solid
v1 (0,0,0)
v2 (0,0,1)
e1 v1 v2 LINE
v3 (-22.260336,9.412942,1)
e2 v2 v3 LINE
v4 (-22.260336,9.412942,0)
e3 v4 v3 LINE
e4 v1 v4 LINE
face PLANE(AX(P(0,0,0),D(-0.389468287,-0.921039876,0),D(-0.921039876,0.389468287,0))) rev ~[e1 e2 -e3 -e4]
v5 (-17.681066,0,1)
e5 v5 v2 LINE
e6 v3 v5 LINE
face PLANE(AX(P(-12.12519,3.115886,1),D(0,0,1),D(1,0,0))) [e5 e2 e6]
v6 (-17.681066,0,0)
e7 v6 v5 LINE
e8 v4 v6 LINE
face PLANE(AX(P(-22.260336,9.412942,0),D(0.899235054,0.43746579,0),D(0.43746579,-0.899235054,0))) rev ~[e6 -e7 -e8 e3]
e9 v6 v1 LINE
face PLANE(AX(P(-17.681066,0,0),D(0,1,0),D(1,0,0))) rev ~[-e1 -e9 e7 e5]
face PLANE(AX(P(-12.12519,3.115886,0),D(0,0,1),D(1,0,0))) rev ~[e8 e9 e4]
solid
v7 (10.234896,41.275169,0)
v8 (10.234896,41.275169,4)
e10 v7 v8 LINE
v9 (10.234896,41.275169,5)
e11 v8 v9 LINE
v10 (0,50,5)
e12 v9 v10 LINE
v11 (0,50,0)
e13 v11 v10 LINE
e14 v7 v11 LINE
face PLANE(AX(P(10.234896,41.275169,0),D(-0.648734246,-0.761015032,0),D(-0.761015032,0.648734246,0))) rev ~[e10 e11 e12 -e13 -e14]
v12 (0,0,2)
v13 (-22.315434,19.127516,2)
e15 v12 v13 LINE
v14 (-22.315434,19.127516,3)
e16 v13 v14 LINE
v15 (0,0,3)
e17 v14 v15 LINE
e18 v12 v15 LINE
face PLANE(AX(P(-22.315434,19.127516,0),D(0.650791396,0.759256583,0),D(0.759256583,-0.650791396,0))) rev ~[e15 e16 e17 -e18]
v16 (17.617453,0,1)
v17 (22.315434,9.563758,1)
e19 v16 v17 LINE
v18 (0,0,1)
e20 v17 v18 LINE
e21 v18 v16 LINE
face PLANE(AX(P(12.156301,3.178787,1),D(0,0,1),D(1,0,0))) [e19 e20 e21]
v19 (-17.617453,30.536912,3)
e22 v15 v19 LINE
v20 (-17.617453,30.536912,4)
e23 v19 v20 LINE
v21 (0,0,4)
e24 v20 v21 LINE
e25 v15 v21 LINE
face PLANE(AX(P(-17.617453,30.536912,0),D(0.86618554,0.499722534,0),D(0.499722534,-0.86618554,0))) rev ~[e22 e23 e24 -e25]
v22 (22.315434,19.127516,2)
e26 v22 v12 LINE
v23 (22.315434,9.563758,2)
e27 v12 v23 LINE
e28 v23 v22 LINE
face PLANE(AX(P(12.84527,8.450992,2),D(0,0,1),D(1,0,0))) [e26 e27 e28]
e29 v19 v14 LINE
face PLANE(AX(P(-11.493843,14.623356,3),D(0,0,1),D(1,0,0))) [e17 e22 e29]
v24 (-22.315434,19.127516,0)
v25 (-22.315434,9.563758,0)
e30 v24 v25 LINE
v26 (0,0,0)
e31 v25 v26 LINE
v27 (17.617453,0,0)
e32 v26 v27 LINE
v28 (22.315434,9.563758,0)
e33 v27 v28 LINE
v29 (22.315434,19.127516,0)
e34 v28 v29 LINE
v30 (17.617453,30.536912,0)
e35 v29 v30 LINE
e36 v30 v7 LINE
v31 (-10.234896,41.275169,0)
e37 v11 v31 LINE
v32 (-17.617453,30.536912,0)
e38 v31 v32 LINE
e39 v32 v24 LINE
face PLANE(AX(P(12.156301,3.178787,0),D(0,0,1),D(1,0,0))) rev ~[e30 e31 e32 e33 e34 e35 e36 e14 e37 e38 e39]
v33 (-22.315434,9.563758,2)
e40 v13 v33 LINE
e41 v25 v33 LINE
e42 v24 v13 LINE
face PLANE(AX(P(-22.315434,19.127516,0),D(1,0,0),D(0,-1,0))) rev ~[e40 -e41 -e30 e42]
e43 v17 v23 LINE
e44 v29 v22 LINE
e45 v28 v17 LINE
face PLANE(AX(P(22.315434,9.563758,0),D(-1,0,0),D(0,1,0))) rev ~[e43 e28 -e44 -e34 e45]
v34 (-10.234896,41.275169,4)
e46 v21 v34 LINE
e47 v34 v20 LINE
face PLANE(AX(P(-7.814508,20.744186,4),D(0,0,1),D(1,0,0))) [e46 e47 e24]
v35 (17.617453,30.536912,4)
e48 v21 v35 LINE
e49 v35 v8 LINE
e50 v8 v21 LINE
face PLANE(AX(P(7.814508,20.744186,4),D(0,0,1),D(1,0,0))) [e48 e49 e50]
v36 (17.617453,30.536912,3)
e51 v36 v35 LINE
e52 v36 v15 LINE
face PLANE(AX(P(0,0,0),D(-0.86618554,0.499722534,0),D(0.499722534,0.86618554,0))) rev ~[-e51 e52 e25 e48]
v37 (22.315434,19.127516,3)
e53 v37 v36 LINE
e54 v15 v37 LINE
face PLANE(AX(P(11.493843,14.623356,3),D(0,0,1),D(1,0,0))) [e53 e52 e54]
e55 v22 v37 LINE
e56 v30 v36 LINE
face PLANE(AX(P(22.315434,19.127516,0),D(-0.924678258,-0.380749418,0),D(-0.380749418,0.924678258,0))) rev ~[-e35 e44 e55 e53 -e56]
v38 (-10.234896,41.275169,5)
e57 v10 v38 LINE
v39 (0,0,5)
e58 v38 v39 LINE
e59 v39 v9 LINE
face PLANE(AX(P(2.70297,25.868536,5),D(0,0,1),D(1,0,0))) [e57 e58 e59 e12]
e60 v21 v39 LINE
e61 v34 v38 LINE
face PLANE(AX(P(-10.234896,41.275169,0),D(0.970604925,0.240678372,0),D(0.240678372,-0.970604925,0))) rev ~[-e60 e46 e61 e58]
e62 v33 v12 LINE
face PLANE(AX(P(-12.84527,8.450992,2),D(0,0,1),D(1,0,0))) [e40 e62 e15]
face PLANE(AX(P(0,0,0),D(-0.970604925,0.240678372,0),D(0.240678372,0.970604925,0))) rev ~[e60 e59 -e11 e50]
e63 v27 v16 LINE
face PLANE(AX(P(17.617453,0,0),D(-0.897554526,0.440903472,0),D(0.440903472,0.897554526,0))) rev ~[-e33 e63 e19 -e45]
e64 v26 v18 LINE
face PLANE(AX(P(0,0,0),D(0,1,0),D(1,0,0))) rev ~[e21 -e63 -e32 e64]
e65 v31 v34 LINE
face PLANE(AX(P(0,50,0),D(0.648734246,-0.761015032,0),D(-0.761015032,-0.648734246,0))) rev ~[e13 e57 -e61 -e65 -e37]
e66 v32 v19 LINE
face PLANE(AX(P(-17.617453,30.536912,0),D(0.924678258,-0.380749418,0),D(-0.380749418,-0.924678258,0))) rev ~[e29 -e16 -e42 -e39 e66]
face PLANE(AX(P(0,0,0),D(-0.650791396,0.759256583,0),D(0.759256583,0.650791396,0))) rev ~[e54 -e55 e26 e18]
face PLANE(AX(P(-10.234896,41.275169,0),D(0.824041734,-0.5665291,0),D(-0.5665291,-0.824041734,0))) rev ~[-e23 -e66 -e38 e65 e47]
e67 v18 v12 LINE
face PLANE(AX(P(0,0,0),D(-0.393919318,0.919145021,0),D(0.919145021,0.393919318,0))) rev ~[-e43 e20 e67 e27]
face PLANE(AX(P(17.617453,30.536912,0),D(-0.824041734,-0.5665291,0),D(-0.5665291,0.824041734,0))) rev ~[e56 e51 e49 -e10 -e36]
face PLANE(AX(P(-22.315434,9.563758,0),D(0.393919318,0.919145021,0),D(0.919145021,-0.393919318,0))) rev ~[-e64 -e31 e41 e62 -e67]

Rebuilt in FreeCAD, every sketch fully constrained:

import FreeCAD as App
import Part
import Sketcher
Q = App.Units.Quantity

doc = App.newDocument("Part")
body = doc.addObject("PartDesign::Body", "Body")

# Sketch on XY plane
sketch1 = body.newObject("Sketcher::SketchObject", "Sketch")
sketch1.AttachmentSupport = (doc.getObject("XY_Plane"), [""])
sketch1.MapMode = "FlatFace"
sketch1.addGeometry(Part.LineSegment(App.Vector(-17.681066, 0, 0), App.Vector(0, 0, 0)), False)
sketch1.addGeometry(Part.LineSegment(App.Vector(0, 0, 0), App.Vector(-22.260336, 9.412942, 0)), False)
sketch1.addGeometry(Part.LineSegment(App.Vector(-22.260336, 9.412942, 0), App.Vector(-17.681066, 0, 0)), False)
sketch1.addConstraint(Sketcher.Constraint("Coincident", 0, 2, 1, 1))
sketch1.addConstraint(Sketcher.Constraint("Coincident", 1, 2, 2, 1))
sketch1.addConstraint(Sketcher.Constraint("Coincident", 2, 2, 0, 1))
sketch1.addConstraint(Sketcher.Constraint("Horizontal", 0))
sketch1.addConstraint(Sketcher.Constraint("Coincident", 0, 2, -1, 1))
sketch1.addConstraint(Sketcher.Constraint("Distance", 1, Q("24.1687 mm")))
sketch1.addConstraint(Sketcher.Constraint("Distance", 2, Q("10.467721 mm")))
sketch1.addConstraint(Sketcher.Constraint("DistanceX", 0, 1, 0, 2, Q("17.681066 mm")))
pad1 = body.newObject("PartDesign::Pad", "Pad")
pad1.Profile = sketch1
pad1.Length = 1
body2 = doc.addObject("PartDesign::Body", "Body001")

# Sketch on XY plane
sketch2 = body2.newObject("Sketcher::SketchObject", "Sketch001")
sketch2.AttachmentSupport = (doc.getObject("XY_Plane001"), [""])
sketch2.MapMode = "FlatFace"
sketch2.addGeometry(Part.LineSegment(App.Vector(-22.315434, 9.563758, 0), App.Vector(0, 0, 0)), False)
sketch2.addGeometry(Part.LineSegment(App.Vector(0, 0, 0), App.Vector(-22.315434, 19.127516, 0)), False)
sketch2.addGeometry(Part.LineSegment(App.Vector(-22.315434, 19.127516, 0), App.Vector(-22.315434, 9.563758, 0)), False)
sketch2.addConstraint(Sketcher.Constraint("Coincident", 0, 2, 1, 1))
sketch2.addConstraint(Sketcher.Constraint("Coincident", 1, 2, 2, 1))
sketch2.addConstraint(Sketcher.Constraint("Coincident", 2, 2, 0, 1))
sketch2.addConstraint(Sketcher.Constraint("Vertical", 2))
sketch2.addConstraint(Sketcher.Constraint("Coincident", 0, 2, -1, 1))
sketch2.addConstraint(Sketcher.Constraint("Distance", 0, Q("24.278469 mm")))
sketch2.addConstraint(Sketcher.Constraint("DistanceY", 2, 2, 2, 1, Q("9.563758 mm")))
sketch2.addConstraint(Sketcher.Constraint("Distance", 1, Q("29.391163 mm")))
pad2 = body2.newObject("PartDesign::Pad", "Pad001")
pad2.Profile = sketch2
pad2.Length = 2
body.AllowCompound = True
doc.recompute()

boolean = body.newObject("PartDesign::Boolean", "Boolean")
boolean.Type = "Fuse"
boolean.addObjects([body2])

# Sketch on XY plane
sketch3 = body.newObject("Sketcher::SketchObject", "Sketch002")
sketch3.AttachmentSupport = (doc.getObject("XY_Plane"), [""])
sketch3.MapMode = "FlatFace"
sketch3.addGeometry(Part.LineSegment(App.Vector(-22.315434, 19.127516, 0), App.Vector(0, 0, 0)), False)
sketch3.addGeometry(Part.LineSegment(App.Vector(0, 0, 0), App.Vector(-17.617453, 30.536912, 0)), False)
sketch3.addGeometry(Part.LineSegment(App.Vector(-17.617453, 30.536912, 0), App.Vector(-22.315434, 19.127516, 0)), False)
sketch3.addConstraint(Sketcher.Constraint("Coincident", 0, 2, 1, 1))
sketch3.addConstraint(Sketcher.Constraint("Coincident", 1, 2, 2, 1))
sketch3.addConstraint(Sketcher.Constraint("Coincident", 2, 2, 0, 1))
sketch3.addConstraint(Sketcher.Constraint("Coincident", 0, 2, -1, 1))
sketch3.addConstraint(Sketcher.Constraint("Distance", 1, Q("35.25447 mm")))
sketch3.addConstraint(Sketcher.Constraint("DistanceX", 2, 2, 1, 2, Q("4.697981 mm")))
sketch3.addConstraint(Sketcher.Constraint("Distance", 0, Q("29.391163 mm")))
sketch3.addConstraint(Sketcher.Constraint("Distance", 2, Q("12.338774 mm")))
pad3 = body.newObject("PartDesign::Pad", "Pad002")
pad3.Profile = sketch3
pad3.Length = 3

# Sketch on XY plane
sketch4 = body.newObject("Sketcher::SketchObject", "Sketch003")
sketch4.AttachmentSupport = (doc.getObject("XY_Plane"), [""])
sketch4.MapMode = "FlatFace"
sketch4.addGeometry(Part.LineSegment(App.Vector(-10.234896, 41.275169, 0), App.Vector(-17.617453, 30.536912, 0)), False)
sketch4.addGeometry(Part.LineSegment(App.Vector(-17.617453, 30.536912, 0), App.Vector(0, 0, 0)), False)
sketch4.addGeometry(Part.LineSegment(App.Vector(0, 0, 0), App.Vector(-10.234896, 41.275169, 0)), False)
sketch4.addConstraint(Sketcher.Constraint("Coincident", 0, 2, 1, 1))
sketch4.addConstraint(Sketcher.Constraint("Coincident", 1, 2, 2, 1))
sketch4.addConstraint(Sketcher.Constraint("Coincident", 2, 2, 0, 1))
sketch4.addConstraint(Sketcher.Constraint("Coincident", 1, 2, -1, 1))
sketch4.addConstraint(Sketcher.Constraint("Distance", 2, Q("42.5252 mm")))
sketch4.addConstraint(Sketcher.Constraint("Distance", 1, Q("35.25447 mm")))
sketch4.addConstraint(Sketcher.Constraint("DistanceY", -1, 1, 2, 2, Q("41.275169 mm")))
sketch4.addConstraint(Sketcher.Constraint("Distance", 0, Q("13.031205 mm")))
pad4 = body.newObject("PartDesign::Pad", "Pad003")
pad4.Profile = sketch4
pad4.Length = 4

# Sketch on XY plane
sketch5 = body.newObject("Sketcher::SketchObject", "Sketch004")
sketch5.AttachmentSupport = (doc.getObject("XY_Plane"), [""])
sketch5.MapMode = "FlatFace"
sketch5.addGeometry(Part.LineSegment(App.Vector(-10.234896, 41.275169, 0), App.Vector(0, 0, 0)), False)
sketch5.addGeometry(Part.LineSegment(App.Vector(0, 0, 0), App.Vector(0, 50, 0)), False)
sketch5.addGeometry(Part.LineSegment(App.Vector(0, 50, 0), App.Vector(-10.234896, 41.275169, 0)), False)
sketch5.addConstraint(Sketcher.Constraint("Coincident", 0, 2, 1, 1))
sketch5.addConstraint(Sketcher.Constraint("Coincident", 1, 2, 2, 1))
sketch5.addConstraint(Sketcher.Constraint("Coincident", 2, 2, 0, 1))
sketch5.addConstraint(Sketcher.Constraint("Vertical", 1))
sketch5.addConstraint(Sketcher.Constraint("Coincident", 0, 2, -1, 1))
sketch5.addConstraint(Sketcher.Constraint("DistanceY", 1, 1, 1, 2, Q("50 mm")))
sketch5.addConstraint(Sketcher.Constraint("Distance", 0, Q("42.5252 mm")))
sketch5.addConstraint(Sketcher.Constraint("DistanceY", -1, 1, 2, 2, Q("41.275169 mm")))
pad5 = body.newObject("PartDesign::Pad", "Pad004")
pad5.Profile = sketch5
pad5.Length = 5

# Sketch on XY plane
sketch6 = body.newObject("Sketcher::SketchObject", "Sketch005")
sketch6.AttachmentSupport = (doc.getObject("XY_Plane"), [""])
sketch6.MapMode = "FlatFace"
sketch6.addGeometry(Part.LineSegment(App.Vector(0, 50, 0), App.Vector(0, 0, 0)), False)
sketch6.addGeometry(Part.LineSegment(App.Vector(0, 0, 0), App.Vector(10.234896, 41.275169, 0)), False)
sketch6.addGeometry(Part.LineSegment(App.Vector(10.234896, 41.275169, 0), App.Vector(0, 50, 0)), False)
sketch6.addConstraint(Sketcher.Constraint("Coincident", 0, 2, 1, 1))
sketch6.addConstraint(Sketcher.Constraint("Coincident", 1, 2, 2, 1))
sketch6.addConstraint(Sketcher.Constraint("Coincident", 2, 2, 0, 1))
sketch6.addConstraint(Sketcher.Constraint("Vertical", 0))
sketch6.addConstraint(Sketcher.Constraint("Coincident", 0, 2, -1, 1))
sketch6.addConstraint(Sketcher.Constraint("DistanceY", 0, 2, 0, 1, Q("50 mm")))
sketch6.addConstraint(Sketcher.Constraint("Distance", 1, Q("42.5252 mm")))
sketch6.addConstraint(Sketcher.Constraint("DistanceY", -1, 1, 1, 2, Q("41.275169 mm")))
pad6 = body.newObject("PartDesign::Pad", "Pad005")
pad6.Profile = sketch6
pad6.Length = 5

# Sketch on XY plane
sketch7 = body.newObject("Sketcher::SketchObject", "Sketch006")
sketch7.AttachmentSupport = (doc.getObject("XY_Plane"), [""])
sketch7.MapMode = "FlatFace"
sketch7.addGeometry(Part.LineSegment(App.Vector(10.234896, 41.275169, 0), App.Vector(0, 0, 0)), False)
sketch7.addGeometry(Part.LineSegment(App.Vector(0, 0, 0), App.Vector(17.617453, 30.536912, 0)), False)
sketch7.addGeometry(Part.LineSegment(App.Vector(17.617453, 30.536912, 0), App.Vector(10.234896, 41.275169, 0)), False)
sketch7.addConstraint(Sketcher.Constraint("Coincident", 0, 2, 1, 1))
sketch7.addConstraint(Sketcher.Constraint("Coincident", 1, 2, 2, 1))
sketch7.addConstraint(Sketcher.Constraint("Coincident", 2, 2, 0, 1))
sketch7.addConstraint(Sketcher.Constraint("Coincident", 0, 2, -1, 1))
sketch7.addConstraint(Sketcher.Constraint("Distance", 0, Q("42.5252 mm")))
sketch7.addConstraint(Sketcher.Constraint("Distance", 1, Q("35.25447 mm")))
sketch7.addConstraint(Sketcher.Constraint("DistanceY", -1, 1, 2, 2, Q("41.275169 mm")))
sketch7.addConstraint(Sketcher.Constraint("Distance", 2, Q("13.031205 mm")))
pad7 = body.newObject("PartDesign::Pad", "Pad006")
pad7.Profile = sketch7
pad7.Length = 4

# Sketch on XY plane
sketch8 = body.newObject("Sketcher::SketchObject", "Sketch007")
sketch8.AttachmentSupport = (doc.getObject("XY_Plane"), [""])
sketch8.MapMode = "FlatFace"
sketch8.addGeometry(Part.LineSegment(App.Vector(17.617453, 30.536912, 0), App.Vector(0, 0, 0)), False)
sketch8.addGeometry(Part.LineSegment(App.Vector(0, 0, 0), App.Vector(22.315434, 19.127516, 0)), False)
sketch8.addGeometry(Part.LineSegment(App.Vector(22.315434, 19.127516, 0), App.Vector(17.617453, 30.536912, 0)), False)
sketch8.addConstraint(Sketcher.Constraint("Coincident", 0, 2, 1, 1))
sketch8.addConstraint(Sketcher.Constraint("Coincident", 1, 2, 2, 1))
sketch8.addConstraint(Sketcher.Constraint("Coincident", 2, 2, 0, 1))
sketch8.addConstraint(Sketcher.Constraint("Coincident", 0, 2, -1, 1))
sketch8.addConstraint(Sketcher.Constraint("Distance", 0, Q("35.25447 mm")))
sketch8.addConstraint(Sketcher.Constraint("DistanceX", 2, 2, 1, 2, Q("4.697981 mm")))
sketch8.addConstraint(Sketcher.Constraint("Distance", 1, Q("29.391163 mm")))
sketch8.addConstraint(Sketcher.Constraint("Distance", 2, Q("12.338774 mm")))
pad8 = body.newObject("PartDesign::Pad", "Pad007")
pad8.Profile = sketch8
pad8.Length = 3

# Sketch on XY plane
sketch9 = body.newObject("Sketcher::SketchObject", "Sketch008")
sketch9.AttachmentSupport = (doc.getObject("XY_Plane"), [""])
sketch9.MapMode = "FlatFace"
sketch9.addGeometry(Part.LineSegment(App.Vector(22.315434, 19.127516, 0), App.Vector(0, 0, 0)), False)
sketch9.addGeometry(Part.LineSegment(App.Vector(0, 0, 0), App.Vector(22.315434, 9.563758, 0)), False)
sketch9.addGeometry(Part.LineSegment(App.Vector(22.315434, 9.563758, 0), App.Vector(22.315434, 19.127516, 0)), False)
sketch9.addConstraint(Sketcher.Constraint("Coincident", 0, 2, 1, 1))
sketch9.addConstraint(Sketcher.Constraint("Coincident", 1, 2, 2, 1))
sketch9.addConstraint(Sketcher.Constraint("Coincident", 2, 2, 0, 1))
sketch9.addConstraint(Sketcher.Constraint("Vertical", 2))
sketch9.addConstraint(Sketcher.Constraint("Coincident", 0, 2, -1, 1))
sketch9.addConstraint(Sketcher.Constraint("Distance", 1, Q("24.278469 mm")))
sketch9.addConstraint(Sketcher.Constraint("DistanceY", 2, 1, 2, 2, Q("9.563758 mm")))
sketch9.addConstraint(Sketcher.Constraint("Distance", 0, Q("29.391163 mm")))
pad9 = body.newObject("PartDesign::Pad", "Pad008")
pad9.Profile = sketch9
pad9.Length = 2

# Sketch on XY plane
sketch10 = body.newObject("Sketcher::SketchObject", "Sketch009")
sketch10.AttachmentSupport = (doc.getObject("XY_Plane"), [""])
sketch10.MapMode = "FlatFace"
sketch10.addGeometry(Part.LineSegment(App.Vector(22.315434, 9.563758, 0), App.Vector(0, 0, 0)), False)
sketch10.addGeometry(Part.LineSegment(App.Vector(0, 0, 0), App.Vector(17.617453, 0, 0)), False)
sketch10.addGeometry(Part.LineSegment(App.Vector(17.617453, 0, 0), App.Vector(22.315434, 9.563758, 0)), False)
sketch10.addConstraint(Sketcher.Constraint("Coincident", 0, 2, 1, 1))
sketch10.addConstraint(Sketcher.Constraint("Coincident", 1, 2, 2, 1))
sketch10.addConstraint(Sketcher.Constraint("Coincident", 2, 2, 0, 1))
sketch10.addConstraint(Sketcher.Constraint("Horizontal", 1))
sketch10.addConstraint(Sketcher.Constraint("Coincident", 0, 2, -1, 1))
sketch10.addConstraint(Sketcher.Constraint("Distance", 0, Q("24.278469 mm")))
sketch10.addConstraint(Sketcher.Constraint("Distance", 2, Q("10.65535 mm")))
sketch10.addConstraint(Sketcher.Constraint("DistanceX", 1, 1, 1, 2, Q("17.617453 mm")))
pad10 = body.newObject("PartDesign::Pad", "Pad009")
pad10.Profile = sketch10
pad10.Length = 1

doc.recompute()
